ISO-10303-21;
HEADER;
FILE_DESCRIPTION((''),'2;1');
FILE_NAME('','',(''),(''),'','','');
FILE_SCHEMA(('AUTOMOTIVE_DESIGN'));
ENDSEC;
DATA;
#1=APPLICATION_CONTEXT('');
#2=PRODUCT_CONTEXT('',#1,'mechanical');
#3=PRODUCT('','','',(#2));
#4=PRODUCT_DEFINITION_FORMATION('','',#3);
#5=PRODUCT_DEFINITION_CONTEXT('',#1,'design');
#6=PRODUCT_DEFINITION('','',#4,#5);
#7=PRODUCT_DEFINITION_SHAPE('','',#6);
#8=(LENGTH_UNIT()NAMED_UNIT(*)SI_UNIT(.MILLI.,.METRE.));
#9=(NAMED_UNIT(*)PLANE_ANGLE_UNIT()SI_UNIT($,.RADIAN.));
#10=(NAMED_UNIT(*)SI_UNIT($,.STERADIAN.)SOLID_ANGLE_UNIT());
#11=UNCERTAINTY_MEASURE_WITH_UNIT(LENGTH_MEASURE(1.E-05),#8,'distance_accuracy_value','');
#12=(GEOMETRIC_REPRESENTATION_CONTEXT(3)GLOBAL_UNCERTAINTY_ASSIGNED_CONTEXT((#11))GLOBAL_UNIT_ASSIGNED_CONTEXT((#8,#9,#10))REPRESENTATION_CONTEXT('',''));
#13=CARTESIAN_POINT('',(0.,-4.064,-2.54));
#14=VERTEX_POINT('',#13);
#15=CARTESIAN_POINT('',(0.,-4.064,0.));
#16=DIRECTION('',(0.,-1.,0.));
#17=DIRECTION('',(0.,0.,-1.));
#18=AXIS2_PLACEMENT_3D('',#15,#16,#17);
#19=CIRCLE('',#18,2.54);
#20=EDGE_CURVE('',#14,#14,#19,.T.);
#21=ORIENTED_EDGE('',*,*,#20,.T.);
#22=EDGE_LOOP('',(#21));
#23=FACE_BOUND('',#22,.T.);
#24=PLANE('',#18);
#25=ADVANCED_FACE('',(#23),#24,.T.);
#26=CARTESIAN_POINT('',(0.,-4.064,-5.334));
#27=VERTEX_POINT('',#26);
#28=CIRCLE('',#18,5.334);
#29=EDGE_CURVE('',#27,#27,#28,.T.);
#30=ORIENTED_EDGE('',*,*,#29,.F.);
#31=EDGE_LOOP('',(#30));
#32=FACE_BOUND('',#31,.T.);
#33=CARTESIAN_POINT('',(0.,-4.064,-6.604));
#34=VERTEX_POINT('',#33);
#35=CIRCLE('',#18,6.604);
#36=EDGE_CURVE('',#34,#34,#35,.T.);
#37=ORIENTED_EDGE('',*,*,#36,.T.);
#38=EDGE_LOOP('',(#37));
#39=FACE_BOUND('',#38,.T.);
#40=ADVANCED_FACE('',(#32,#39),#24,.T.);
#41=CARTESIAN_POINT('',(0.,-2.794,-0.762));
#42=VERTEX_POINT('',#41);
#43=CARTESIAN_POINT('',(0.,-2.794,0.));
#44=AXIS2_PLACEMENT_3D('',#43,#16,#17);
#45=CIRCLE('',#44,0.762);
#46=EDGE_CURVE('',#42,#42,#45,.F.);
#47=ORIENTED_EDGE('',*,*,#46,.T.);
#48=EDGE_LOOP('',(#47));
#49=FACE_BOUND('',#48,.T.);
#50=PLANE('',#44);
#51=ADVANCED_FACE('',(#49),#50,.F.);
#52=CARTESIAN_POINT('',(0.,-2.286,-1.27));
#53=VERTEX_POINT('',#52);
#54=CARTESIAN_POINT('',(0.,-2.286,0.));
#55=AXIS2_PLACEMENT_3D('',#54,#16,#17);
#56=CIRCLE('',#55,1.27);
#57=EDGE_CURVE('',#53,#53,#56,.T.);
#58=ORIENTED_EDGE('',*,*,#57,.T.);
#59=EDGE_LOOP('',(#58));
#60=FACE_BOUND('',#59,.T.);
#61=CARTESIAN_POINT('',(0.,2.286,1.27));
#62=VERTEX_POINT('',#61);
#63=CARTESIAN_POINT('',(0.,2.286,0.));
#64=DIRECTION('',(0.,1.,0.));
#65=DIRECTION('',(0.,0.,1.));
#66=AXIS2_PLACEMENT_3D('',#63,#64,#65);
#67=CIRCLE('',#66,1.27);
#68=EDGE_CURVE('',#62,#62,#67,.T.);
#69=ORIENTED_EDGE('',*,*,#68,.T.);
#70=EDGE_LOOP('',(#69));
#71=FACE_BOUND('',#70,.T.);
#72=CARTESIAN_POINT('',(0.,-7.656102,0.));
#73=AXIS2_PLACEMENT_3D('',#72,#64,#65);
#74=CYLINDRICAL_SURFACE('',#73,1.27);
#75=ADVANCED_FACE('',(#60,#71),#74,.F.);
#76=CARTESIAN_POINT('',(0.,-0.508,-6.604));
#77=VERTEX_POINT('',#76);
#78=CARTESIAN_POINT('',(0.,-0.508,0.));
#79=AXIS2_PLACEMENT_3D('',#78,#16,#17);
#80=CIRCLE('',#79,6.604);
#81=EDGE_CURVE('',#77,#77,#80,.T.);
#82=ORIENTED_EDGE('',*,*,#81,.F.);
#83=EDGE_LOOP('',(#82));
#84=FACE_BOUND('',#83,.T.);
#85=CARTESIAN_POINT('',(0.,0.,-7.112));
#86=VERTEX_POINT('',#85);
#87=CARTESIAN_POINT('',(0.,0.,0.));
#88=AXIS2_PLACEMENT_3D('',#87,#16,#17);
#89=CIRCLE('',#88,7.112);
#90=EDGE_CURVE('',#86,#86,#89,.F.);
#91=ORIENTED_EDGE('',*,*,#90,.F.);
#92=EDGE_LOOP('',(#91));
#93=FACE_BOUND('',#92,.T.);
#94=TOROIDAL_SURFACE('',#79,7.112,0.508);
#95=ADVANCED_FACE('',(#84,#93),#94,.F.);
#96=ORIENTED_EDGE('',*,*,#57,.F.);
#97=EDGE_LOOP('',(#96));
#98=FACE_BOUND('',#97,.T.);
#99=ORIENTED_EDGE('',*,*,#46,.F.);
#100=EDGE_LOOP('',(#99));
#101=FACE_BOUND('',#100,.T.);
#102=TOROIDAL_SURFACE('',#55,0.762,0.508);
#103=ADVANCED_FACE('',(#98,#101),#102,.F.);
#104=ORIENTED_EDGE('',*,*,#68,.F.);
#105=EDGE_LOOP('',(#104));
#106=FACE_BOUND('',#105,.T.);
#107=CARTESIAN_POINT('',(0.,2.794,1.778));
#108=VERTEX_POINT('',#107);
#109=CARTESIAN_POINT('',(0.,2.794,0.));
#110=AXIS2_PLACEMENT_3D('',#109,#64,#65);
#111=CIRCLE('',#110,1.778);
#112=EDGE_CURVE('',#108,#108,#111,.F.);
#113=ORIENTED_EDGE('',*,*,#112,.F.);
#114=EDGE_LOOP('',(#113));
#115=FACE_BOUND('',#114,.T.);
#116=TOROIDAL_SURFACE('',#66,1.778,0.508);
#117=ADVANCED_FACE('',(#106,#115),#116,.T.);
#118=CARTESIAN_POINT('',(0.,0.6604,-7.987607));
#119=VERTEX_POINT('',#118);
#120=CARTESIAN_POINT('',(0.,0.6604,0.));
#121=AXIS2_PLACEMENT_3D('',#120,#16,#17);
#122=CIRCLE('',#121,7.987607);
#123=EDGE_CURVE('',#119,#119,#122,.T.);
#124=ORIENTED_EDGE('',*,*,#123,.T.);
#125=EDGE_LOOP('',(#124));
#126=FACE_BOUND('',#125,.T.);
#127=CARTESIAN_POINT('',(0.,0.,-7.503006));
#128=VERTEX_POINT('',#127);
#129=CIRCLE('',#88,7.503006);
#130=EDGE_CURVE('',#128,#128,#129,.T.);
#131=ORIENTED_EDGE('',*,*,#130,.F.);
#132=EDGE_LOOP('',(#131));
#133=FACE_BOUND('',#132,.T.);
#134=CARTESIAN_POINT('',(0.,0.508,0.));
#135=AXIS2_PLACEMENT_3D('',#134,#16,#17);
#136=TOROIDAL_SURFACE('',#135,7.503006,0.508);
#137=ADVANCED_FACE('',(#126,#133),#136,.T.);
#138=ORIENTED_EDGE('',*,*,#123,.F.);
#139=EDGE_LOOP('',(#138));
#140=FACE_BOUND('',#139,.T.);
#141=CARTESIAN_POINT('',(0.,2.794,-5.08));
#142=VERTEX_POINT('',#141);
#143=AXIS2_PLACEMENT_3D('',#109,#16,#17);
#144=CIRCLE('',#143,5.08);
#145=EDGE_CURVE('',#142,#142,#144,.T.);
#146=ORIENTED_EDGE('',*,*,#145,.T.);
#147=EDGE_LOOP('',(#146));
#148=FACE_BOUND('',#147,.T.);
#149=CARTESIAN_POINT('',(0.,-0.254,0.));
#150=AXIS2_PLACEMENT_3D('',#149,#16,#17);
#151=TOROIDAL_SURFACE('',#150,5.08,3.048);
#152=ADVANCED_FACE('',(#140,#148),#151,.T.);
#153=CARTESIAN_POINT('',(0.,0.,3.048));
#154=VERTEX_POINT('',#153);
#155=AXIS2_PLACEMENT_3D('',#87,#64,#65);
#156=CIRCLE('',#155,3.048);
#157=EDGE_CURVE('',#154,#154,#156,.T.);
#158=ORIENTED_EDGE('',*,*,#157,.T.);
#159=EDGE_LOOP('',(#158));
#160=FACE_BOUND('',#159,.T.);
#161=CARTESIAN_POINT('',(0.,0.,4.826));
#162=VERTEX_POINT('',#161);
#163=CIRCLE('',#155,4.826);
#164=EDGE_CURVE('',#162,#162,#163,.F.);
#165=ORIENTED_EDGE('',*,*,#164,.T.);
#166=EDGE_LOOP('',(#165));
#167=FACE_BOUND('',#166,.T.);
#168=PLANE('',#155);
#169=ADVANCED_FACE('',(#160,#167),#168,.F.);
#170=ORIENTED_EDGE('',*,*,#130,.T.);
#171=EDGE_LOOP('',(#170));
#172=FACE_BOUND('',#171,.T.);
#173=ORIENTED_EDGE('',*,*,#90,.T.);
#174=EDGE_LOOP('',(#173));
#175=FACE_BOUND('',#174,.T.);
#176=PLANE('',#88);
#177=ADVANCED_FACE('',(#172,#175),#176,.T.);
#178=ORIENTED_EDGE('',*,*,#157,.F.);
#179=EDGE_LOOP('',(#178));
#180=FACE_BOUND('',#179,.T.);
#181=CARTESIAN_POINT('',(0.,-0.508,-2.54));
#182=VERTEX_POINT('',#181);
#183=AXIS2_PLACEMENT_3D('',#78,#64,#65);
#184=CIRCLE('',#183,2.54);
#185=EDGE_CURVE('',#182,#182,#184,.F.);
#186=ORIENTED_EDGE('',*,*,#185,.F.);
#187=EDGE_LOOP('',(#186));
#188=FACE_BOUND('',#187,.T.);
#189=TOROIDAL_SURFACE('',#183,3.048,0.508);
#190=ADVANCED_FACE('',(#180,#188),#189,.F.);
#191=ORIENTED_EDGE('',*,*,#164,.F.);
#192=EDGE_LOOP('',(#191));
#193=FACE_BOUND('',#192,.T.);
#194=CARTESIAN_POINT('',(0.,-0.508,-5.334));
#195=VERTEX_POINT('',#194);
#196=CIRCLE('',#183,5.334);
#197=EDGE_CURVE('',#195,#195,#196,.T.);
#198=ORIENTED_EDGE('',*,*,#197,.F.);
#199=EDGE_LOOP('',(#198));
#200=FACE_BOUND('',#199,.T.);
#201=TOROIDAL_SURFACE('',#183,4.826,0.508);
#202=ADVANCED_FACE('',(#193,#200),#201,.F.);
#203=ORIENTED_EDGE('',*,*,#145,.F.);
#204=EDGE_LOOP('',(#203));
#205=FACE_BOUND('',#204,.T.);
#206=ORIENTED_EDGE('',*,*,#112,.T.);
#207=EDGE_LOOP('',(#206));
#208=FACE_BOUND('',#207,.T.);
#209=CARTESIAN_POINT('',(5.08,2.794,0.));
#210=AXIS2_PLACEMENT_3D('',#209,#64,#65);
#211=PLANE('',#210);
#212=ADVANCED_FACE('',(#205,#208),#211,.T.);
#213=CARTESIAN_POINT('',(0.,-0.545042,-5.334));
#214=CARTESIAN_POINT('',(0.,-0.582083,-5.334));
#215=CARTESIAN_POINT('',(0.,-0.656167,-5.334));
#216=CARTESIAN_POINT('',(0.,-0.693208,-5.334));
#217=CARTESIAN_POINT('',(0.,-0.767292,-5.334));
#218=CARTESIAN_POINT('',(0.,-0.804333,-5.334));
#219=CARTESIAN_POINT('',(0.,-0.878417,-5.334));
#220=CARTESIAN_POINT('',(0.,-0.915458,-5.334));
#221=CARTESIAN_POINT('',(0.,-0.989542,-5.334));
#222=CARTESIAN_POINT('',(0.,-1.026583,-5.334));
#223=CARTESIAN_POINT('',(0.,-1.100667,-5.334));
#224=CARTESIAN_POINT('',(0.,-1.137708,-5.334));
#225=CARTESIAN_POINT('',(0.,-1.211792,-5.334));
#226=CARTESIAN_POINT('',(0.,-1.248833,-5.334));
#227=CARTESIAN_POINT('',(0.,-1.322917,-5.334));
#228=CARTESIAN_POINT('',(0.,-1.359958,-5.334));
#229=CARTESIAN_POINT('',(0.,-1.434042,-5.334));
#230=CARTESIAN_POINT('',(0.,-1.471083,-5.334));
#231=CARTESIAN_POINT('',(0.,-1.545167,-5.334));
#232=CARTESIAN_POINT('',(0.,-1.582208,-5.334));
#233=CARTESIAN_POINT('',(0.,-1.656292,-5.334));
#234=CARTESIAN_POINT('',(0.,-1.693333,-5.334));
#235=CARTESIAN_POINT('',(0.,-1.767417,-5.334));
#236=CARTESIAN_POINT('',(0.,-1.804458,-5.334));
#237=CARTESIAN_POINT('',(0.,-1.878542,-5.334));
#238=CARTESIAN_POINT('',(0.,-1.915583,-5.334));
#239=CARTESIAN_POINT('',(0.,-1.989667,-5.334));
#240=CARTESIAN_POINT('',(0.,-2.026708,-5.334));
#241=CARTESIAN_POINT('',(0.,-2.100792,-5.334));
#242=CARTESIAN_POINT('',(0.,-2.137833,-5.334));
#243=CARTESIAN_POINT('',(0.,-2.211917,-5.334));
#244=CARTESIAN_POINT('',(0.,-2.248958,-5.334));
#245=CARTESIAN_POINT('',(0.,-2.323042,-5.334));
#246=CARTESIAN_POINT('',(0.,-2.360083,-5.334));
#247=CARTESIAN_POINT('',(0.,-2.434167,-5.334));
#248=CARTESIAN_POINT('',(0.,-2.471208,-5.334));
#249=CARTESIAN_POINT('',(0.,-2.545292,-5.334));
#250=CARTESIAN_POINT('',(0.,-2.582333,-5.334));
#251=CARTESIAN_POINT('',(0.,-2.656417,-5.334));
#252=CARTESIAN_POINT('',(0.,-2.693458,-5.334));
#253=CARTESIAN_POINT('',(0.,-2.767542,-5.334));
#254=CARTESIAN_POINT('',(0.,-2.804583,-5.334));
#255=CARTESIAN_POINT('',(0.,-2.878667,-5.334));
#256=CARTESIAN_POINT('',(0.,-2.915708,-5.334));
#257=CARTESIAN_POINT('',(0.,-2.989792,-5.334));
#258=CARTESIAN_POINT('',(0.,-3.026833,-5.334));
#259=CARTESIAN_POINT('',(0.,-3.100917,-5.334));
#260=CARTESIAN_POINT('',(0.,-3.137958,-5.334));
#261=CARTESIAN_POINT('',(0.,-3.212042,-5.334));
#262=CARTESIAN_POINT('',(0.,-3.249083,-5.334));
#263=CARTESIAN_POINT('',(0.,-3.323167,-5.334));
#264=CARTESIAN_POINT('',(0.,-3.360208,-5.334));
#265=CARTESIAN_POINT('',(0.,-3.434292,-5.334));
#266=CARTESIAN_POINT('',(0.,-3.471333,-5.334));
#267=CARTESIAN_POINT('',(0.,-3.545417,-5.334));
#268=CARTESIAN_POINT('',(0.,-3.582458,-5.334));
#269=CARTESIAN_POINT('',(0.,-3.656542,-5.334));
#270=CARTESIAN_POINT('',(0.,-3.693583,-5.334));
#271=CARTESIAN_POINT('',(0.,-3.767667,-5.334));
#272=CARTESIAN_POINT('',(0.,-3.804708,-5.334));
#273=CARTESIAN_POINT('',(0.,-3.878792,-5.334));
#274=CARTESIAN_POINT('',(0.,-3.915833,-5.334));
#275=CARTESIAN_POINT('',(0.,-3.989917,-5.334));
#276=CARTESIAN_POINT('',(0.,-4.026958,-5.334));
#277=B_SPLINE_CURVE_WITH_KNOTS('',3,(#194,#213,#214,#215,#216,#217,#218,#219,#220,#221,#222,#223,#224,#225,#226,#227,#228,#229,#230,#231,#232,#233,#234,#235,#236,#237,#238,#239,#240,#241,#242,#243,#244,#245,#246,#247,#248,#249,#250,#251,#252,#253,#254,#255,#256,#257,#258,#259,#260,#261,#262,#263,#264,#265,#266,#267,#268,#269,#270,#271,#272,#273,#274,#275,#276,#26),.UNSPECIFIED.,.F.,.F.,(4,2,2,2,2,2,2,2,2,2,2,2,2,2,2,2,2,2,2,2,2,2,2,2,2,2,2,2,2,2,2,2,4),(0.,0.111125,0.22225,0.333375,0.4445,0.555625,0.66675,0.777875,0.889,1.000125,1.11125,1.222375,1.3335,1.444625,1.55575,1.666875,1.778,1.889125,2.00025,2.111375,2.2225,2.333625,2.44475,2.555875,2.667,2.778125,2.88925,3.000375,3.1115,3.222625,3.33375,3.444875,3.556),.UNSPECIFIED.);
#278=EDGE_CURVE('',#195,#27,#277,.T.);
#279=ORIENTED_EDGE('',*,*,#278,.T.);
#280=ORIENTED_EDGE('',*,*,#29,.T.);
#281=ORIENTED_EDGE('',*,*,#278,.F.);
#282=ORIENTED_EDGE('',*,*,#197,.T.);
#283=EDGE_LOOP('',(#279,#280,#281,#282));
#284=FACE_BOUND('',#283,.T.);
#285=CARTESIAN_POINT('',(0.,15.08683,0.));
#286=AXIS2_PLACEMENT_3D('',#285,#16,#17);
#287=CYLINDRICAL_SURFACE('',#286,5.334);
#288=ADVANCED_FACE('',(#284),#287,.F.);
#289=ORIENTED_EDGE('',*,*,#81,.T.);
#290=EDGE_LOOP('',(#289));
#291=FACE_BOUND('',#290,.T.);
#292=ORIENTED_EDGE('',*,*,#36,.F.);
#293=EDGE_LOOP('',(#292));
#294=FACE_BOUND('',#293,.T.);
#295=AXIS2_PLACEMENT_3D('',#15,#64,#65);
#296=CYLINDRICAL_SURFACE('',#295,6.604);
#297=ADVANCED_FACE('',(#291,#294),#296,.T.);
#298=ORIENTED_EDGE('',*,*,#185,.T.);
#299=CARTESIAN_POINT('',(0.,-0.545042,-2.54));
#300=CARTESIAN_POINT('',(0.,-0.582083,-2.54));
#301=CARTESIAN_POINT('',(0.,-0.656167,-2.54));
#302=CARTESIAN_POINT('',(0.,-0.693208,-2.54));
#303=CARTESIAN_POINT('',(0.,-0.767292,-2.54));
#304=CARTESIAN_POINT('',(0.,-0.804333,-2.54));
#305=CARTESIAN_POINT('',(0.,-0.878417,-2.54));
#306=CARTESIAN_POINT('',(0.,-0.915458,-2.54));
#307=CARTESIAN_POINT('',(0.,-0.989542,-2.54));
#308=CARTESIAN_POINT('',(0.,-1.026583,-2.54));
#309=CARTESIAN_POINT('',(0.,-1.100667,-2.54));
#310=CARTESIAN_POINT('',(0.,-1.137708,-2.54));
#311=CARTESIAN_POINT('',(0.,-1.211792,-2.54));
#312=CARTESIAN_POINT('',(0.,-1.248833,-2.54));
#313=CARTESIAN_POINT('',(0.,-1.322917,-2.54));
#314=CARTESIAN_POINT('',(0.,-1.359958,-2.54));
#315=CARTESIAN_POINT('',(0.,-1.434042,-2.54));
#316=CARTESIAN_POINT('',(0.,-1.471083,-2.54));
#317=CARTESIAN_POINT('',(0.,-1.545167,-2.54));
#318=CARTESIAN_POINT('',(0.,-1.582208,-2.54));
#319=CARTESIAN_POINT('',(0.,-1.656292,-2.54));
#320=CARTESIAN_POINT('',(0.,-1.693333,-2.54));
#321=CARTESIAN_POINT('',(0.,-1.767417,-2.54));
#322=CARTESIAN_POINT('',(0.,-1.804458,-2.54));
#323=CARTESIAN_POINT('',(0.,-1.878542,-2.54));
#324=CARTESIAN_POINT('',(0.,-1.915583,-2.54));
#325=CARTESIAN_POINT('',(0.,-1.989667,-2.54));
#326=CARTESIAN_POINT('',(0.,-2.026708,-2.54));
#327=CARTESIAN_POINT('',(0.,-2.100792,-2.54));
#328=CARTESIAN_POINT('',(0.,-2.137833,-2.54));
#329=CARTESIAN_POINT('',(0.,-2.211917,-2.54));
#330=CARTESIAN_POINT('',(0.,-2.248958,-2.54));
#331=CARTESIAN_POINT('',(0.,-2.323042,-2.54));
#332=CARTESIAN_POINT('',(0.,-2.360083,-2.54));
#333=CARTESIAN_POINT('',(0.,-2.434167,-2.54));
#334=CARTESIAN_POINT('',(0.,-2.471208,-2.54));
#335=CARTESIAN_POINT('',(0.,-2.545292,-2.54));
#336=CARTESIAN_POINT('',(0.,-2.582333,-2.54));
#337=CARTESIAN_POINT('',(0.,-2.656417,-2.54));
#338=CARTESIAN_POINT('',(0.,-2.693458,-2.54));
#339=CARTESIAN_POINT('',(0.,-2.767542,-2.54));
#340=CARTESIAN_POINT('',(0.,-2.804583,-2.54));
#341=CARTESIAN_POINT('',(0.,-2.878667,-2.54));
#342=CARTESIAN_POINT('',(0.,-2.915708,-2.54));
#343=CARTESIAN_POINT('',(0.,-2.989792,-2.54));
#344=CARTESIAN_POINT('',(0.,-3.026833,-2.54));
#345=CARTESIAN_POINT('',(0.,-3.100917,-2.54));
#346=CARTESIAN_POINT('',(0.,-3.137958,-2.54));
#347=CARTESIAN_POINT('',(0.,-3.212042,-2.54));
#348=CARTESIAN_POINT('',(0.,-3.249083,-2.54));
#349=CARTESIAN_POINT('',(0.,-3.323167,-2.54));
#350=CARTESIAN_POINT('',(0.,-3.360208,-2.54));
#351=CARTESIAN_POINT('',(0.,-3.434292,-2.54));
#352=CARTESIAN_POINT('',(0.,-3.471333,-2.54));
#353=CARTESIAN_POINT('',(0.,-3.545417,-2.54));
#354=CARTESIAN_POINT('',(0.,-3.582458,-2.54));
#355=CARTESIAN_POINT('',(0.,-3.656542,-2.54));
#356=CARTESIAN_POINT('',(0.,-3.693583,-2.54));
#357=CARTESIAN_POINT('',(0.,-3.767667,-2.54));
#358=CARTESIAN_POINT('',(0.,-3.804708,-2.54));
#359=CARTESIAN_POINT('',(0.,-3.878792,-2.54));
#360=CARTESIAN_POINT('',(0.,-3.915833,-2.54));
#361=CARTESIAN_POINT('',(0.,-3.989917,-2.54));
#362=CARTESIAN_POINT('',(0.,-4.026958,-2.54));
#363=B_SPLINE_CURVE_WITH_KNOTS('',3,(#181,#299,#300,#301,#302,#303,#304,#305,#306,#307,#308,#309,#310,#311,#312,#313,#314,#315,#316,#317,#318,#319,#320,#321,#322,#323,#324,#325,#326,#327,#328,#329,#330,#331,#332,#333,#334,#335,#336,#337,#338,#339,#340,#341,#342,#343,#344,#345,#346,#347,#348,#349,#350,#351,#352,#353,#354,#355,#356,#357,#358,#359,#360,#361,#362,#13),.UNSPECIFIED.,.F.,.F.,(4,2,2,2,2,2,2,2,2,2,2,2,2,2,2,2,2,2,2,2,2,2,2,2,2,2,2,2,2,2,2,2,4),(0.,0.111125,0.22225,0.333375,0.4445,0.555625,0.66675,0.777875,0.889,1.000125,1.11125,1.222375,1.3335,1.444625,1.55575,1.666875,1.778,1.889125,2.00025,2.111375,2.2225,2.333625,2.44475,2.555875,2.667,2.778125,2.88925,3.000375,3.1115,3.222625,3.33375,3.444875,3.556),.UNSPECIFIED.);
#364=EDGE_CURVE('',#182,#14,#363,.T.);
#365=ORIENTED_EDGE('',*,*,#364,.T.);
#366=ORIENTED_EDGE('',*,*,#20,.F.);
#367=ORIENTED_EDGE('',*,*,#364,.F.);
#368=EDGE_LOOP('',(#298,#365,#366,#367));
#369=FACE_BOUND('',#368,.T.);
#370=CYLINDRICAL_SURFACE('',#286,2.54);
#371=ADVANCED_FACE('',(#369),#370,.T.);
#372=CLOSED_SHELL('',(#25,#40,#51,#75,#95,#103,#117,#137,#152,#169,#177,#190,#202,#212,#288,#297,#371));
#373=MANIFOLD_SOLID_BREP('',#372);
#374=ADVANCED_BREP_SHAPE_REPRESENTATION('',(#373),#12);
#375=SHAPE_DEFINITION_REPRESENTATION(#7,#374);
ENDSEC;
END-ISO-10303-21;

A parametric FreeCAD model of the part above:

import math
import FreeCAD as App
import Part
import Sketcher

V = App.Vector
Q = App.Units.Quantity


def edges_at(feature, points):
    """Names of the edges that pass closest to the given points."""
    edges = feature.Shape.Edges
    near = lambda p: min(range(len(edges)), key=lambda i: edges[i].distToShape(Part.Vertex(*p))[0])
    return sorted({f"Edge{near(p) + 1}" for p in points})

doc = App.newDocument("Part")
body = doc.addObject("PartDesign::Body", "Body")

# Sketch on XY plane
sketch1 = body.newObject("Sketcher::SketchObject", "Sketch")
sketch1.AttachmentSupport = (doc.getObject("XY_Plane"), [""])
sketch1.MapMode = "FlatFace"
sketch1.addGeometry(Part.LineSegment(V(0, 0, 0), V(7.5, 0, 0)), False)
sketch1.addGeometry(Part.ArcOfCircle(Part.Circle(V(7.5, 0.5, 0), V(0, 0, 1), 0.5), math.radians(-90), math.radians(17)), False)
sketch1.addGeometry(Part.ArcOfCircle(Part.Circle(V(5.1, -0.3, 0), V(0, 0, 1), 3), math.radians(17), math.radians(90)), False)
sketch1.addGeometry(Part.LineSegment(V(5.1, 2.8, 0), V(0, 2.8, 0)), False)
sketch1.addGeometry(Part.LineSegment(V(0, 2.8, 0), V(0, 0, 0)), False)
sketch1.addConstraint(Sketcher.Constraint("Tangent", 0, 2, 1, 1))
sketch1.addConstraint(Sketcher.Constraint("Tangent", 1, 2, 2, 1))
sketch1.addConstraint(Sketcher.Constraint("Tangent", 2, 2, 3, 1))
sketch1.addConstraint(Sketcher.Constraint("Coincident", 3, 2, 4, 1))
sketch1.addConstraint(Sketcher.Constraint("Coincident", 4, 2, 0, 1))
sketch1.addConstraint(Sketcher.Constraint("Horizontal", 0))
sketch1.addConstraint(Sketcher.Constraint("Horizontal", 3))
sketch1.addConstraint(Sketcher.Constraint("Vertical", 4))
sketch1.addConstraint(Sketcher.Constraint("Coincident", 4, 2, -1, 1))
sketch1.addConstraint(Sketcher.Constraint("Radius", 1, Q("0.02 in")))
sketch1.addConstraint(Sketcher.Constraint("Radius", 2, Q("0.12 in")))
sketch1.addConstraint(Sketcher.Constraint("DistanceX", 3, 2, 3, 1, Q("0.2 in")))
sketch1.addConstraint(Sketcher.Constraint("DistanceY", 4, 2, 4, 1, Q("0.11 in")))
revolution = body.newObject("PartDesign::Revolution", "Revolution")
revolution.Profile = sketch1
revolution.ReferenceAxis = (sketch1, ["V_Axis"])
revolution.Angle = 360

# Sketch on XZ plane
sketch2 = body.newObject("Sketcher::SketchObject", "Sketch001")
sketch2.AttachmentSupport = (doc.getObject("XZ_Plane"), [""])
sketch2.MapMode = "FlatFace"
sketch2.addGeometry(Part.Circle(V(0, 0, 0), V(0, 0, 1), 7), False)
sketch2.addConstraint(Sketcher.Constraint("Coincident", 0, 3, -1, 1))
sketch2.addConstraint(Sketcher.Constraint("Diameter", 0, Q("0.52 in")))
pad1 = body.newObject("PartDesign::Pad", "Pad")
pad1.Profile = sketch2
pad1.Length = Q("0.16 in")

# Sketch on XZ plane
sketch3 = body.newObject("Sketcher::SketchObject", "Sketch002")
sketch3.AttachmentSupport = (doc.getObject("XZ_Plane"), [""])
sketch3.MapMode = "FlatFace"
sketch3.addGeometry(Part.Circle(V(0, 0, 0), V(0, 0, 1), 5.3), False)
sketch3.addGeometry(Part.Circle(V(0, 0, 0), V(0, 0, 1), 2.5), False)
sketch3.addConstraint(Sketcher.Constraint("Coincident", 0, 3, -1, 1))
sketch3.addConstraint(Sketcher.Constraint("Coincident", 1, 3, -1, 1))
sketch3.addConstraint(Sketcher.Constraint("Diameter", 1, Q("0.2 in")))
sketch3.addConstraint(Sketcher.Constraint("Diameter", 0, Q("0.42 in")))
pocket1 = body.newObject("PartDesign::Pocket", "Pocket")
pocket1.Profile = sketch3
pocket1.Length = Q("0.16 in")
pocket1.Reversed = True

# Sketch on XZ plane
sketch4 = body.newObject("Sketcher::SketchObject", "Sketch003")
sketch4.AttachmentSupport = (doc.getObject("XZ_Plane"), [""])
sketch4.MapMode = "FlatFace"
sketch4.AttachmentOffset = App.Placement(V(0, 0, -0.11 * 25.4), App.Rotation())
sketch4.addGeometry(Part.Circle(V(0, 0, 0), V(0, 0, 1), 1.3), False)
sketch4.addConstraint(Sketcher.Constraint("Coincident", 0, 3, -1, 1))
sketch4.addConstraint(Sketcher.Constraint("Diameter", 0, Q("0.1 in")))
pocket2 = body.newObject("PartDesign::Pocket", "Pocket001")
pocket2.Profile = sketch4
pocket2.Length = Q("0.22 in")
pocket2.Reversed = True
doc.recompute()

fillet = body.newObject("PartDesign::Fillet", "Fillet")
fillet.Base = (pocket2, edges_at(pocket2, [
    (0, 0, 6.604),
    (0, 0, 2.54),
    (0, 0, 5.334),
    (0, 2.794, -1.27),
    (0, -2.794, -1.27),
]))
fillet.Radius = Q("0.02 in")

doc.recompute()
